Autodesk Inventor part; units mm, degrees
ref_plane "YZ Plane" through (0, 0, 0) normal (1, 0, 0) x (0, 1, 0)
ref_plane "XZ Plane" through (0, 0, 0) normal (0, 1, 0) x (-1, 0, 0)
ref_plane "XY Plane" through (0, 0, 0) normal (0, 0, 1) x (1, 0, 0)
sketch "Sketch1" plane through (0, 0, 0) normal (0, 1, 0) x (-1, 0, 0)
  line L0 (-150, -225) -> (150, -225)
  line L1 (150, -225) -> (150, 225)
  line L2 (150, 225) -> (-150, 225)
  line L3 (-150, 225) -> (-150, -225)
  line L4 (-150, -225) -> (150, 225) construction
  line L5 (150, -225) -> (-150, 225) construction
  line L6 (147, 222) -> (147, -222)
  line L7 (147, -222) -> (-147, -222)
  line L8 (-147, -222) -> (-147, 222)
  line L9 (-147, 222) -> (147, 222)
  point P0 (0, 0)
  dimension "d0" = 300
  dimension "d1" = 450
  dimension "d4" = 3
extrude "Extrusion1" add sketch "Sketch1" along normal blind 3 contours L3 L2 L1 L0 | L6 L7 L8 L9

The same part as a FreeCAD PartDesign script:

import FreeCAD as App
import Part
import Sketcher


def add_polygon(sketch, points):
    """Adds a closed chain of lines whose ends are joined by coincident constraints."""
    first, n = sketch.GeometryCount, len(points)
    for a, b in zip(points, points[1:] + points[:1]):
        sketch.addGeometry(Part.LineSegment(App.Vector(*a, 0), App.Vector(*b, 0)), False)
    for i in range(n):
        sketch.addConstraint(Sketcher.Constraint("Coincident", first + i, 2, first + (i + 1) % n, 1))

doc = App.newDocument("Part")
params = doc.addObject("Spreadsheet::Sheet", "Params")
for row, (alias, value) in enumerate([
    ("sketch1_width", "300 mm"),
    ("sketch1_height", "450 mm"),
    ("pad1_length", "3 mm"),
], start=1):
    params.set(f"A{row}", alias)
    params.set(f"B{row}", "=" + value)
    params.setAlias(f"B{row}", alias)

body = doc.addObject("PartDesign::Body", "Body")

# Sketch on XZ plane
sketch1 = doc.addObject("Sketcher::SketchObject", "Sketch")
body.addObject(sketch1)
sketch1.AttachmentSupport = (doc.XZ_Plane, [""])
sketch1.MapMode = "FlatFace"
add_polygon(sketch1, [(150, 225), (150, -225), (-150, -225), (-150, 225)])  # lines 0-3
sketch1.addConstraint(Sketcher.Constraint("Vertical", 0))
sketch1.addConstraint(Sketcher.Constraint("Horizontal", 1))
sketch1.addConstraint(Sketcher.Constraint("Vertical", 2))
sketch1.addConstraint(Sketcher.Constraint("Horizontal", 3))
sketch1.addConstraint(Sketcher.Constraint("Symmetric", 0, 2, 2, 2, -1, 1))
sketch1.addConstraint(Sketcher.Constraint("DistanceX", 1, 2, 1, 1, 300.0))
sketch1.addConstraint(Sketcher.Constraint("DistanceY", 0, 2, 0, 1, 450.0))
sketch1.setExpression("Constraints[9]", "Params.sketch1_width")
sketch1.setExpression("Constraints[10]", "Params.sketch1_height")
pad1 = doc.addObject("PartDesign::Pad", "Pad")
body.addObject(pad1)
pad1.Profile = sketch1
pad1.setExpression("Length", "Params.pad1_length")
pad1.Reversed = True

doc.recompute()
